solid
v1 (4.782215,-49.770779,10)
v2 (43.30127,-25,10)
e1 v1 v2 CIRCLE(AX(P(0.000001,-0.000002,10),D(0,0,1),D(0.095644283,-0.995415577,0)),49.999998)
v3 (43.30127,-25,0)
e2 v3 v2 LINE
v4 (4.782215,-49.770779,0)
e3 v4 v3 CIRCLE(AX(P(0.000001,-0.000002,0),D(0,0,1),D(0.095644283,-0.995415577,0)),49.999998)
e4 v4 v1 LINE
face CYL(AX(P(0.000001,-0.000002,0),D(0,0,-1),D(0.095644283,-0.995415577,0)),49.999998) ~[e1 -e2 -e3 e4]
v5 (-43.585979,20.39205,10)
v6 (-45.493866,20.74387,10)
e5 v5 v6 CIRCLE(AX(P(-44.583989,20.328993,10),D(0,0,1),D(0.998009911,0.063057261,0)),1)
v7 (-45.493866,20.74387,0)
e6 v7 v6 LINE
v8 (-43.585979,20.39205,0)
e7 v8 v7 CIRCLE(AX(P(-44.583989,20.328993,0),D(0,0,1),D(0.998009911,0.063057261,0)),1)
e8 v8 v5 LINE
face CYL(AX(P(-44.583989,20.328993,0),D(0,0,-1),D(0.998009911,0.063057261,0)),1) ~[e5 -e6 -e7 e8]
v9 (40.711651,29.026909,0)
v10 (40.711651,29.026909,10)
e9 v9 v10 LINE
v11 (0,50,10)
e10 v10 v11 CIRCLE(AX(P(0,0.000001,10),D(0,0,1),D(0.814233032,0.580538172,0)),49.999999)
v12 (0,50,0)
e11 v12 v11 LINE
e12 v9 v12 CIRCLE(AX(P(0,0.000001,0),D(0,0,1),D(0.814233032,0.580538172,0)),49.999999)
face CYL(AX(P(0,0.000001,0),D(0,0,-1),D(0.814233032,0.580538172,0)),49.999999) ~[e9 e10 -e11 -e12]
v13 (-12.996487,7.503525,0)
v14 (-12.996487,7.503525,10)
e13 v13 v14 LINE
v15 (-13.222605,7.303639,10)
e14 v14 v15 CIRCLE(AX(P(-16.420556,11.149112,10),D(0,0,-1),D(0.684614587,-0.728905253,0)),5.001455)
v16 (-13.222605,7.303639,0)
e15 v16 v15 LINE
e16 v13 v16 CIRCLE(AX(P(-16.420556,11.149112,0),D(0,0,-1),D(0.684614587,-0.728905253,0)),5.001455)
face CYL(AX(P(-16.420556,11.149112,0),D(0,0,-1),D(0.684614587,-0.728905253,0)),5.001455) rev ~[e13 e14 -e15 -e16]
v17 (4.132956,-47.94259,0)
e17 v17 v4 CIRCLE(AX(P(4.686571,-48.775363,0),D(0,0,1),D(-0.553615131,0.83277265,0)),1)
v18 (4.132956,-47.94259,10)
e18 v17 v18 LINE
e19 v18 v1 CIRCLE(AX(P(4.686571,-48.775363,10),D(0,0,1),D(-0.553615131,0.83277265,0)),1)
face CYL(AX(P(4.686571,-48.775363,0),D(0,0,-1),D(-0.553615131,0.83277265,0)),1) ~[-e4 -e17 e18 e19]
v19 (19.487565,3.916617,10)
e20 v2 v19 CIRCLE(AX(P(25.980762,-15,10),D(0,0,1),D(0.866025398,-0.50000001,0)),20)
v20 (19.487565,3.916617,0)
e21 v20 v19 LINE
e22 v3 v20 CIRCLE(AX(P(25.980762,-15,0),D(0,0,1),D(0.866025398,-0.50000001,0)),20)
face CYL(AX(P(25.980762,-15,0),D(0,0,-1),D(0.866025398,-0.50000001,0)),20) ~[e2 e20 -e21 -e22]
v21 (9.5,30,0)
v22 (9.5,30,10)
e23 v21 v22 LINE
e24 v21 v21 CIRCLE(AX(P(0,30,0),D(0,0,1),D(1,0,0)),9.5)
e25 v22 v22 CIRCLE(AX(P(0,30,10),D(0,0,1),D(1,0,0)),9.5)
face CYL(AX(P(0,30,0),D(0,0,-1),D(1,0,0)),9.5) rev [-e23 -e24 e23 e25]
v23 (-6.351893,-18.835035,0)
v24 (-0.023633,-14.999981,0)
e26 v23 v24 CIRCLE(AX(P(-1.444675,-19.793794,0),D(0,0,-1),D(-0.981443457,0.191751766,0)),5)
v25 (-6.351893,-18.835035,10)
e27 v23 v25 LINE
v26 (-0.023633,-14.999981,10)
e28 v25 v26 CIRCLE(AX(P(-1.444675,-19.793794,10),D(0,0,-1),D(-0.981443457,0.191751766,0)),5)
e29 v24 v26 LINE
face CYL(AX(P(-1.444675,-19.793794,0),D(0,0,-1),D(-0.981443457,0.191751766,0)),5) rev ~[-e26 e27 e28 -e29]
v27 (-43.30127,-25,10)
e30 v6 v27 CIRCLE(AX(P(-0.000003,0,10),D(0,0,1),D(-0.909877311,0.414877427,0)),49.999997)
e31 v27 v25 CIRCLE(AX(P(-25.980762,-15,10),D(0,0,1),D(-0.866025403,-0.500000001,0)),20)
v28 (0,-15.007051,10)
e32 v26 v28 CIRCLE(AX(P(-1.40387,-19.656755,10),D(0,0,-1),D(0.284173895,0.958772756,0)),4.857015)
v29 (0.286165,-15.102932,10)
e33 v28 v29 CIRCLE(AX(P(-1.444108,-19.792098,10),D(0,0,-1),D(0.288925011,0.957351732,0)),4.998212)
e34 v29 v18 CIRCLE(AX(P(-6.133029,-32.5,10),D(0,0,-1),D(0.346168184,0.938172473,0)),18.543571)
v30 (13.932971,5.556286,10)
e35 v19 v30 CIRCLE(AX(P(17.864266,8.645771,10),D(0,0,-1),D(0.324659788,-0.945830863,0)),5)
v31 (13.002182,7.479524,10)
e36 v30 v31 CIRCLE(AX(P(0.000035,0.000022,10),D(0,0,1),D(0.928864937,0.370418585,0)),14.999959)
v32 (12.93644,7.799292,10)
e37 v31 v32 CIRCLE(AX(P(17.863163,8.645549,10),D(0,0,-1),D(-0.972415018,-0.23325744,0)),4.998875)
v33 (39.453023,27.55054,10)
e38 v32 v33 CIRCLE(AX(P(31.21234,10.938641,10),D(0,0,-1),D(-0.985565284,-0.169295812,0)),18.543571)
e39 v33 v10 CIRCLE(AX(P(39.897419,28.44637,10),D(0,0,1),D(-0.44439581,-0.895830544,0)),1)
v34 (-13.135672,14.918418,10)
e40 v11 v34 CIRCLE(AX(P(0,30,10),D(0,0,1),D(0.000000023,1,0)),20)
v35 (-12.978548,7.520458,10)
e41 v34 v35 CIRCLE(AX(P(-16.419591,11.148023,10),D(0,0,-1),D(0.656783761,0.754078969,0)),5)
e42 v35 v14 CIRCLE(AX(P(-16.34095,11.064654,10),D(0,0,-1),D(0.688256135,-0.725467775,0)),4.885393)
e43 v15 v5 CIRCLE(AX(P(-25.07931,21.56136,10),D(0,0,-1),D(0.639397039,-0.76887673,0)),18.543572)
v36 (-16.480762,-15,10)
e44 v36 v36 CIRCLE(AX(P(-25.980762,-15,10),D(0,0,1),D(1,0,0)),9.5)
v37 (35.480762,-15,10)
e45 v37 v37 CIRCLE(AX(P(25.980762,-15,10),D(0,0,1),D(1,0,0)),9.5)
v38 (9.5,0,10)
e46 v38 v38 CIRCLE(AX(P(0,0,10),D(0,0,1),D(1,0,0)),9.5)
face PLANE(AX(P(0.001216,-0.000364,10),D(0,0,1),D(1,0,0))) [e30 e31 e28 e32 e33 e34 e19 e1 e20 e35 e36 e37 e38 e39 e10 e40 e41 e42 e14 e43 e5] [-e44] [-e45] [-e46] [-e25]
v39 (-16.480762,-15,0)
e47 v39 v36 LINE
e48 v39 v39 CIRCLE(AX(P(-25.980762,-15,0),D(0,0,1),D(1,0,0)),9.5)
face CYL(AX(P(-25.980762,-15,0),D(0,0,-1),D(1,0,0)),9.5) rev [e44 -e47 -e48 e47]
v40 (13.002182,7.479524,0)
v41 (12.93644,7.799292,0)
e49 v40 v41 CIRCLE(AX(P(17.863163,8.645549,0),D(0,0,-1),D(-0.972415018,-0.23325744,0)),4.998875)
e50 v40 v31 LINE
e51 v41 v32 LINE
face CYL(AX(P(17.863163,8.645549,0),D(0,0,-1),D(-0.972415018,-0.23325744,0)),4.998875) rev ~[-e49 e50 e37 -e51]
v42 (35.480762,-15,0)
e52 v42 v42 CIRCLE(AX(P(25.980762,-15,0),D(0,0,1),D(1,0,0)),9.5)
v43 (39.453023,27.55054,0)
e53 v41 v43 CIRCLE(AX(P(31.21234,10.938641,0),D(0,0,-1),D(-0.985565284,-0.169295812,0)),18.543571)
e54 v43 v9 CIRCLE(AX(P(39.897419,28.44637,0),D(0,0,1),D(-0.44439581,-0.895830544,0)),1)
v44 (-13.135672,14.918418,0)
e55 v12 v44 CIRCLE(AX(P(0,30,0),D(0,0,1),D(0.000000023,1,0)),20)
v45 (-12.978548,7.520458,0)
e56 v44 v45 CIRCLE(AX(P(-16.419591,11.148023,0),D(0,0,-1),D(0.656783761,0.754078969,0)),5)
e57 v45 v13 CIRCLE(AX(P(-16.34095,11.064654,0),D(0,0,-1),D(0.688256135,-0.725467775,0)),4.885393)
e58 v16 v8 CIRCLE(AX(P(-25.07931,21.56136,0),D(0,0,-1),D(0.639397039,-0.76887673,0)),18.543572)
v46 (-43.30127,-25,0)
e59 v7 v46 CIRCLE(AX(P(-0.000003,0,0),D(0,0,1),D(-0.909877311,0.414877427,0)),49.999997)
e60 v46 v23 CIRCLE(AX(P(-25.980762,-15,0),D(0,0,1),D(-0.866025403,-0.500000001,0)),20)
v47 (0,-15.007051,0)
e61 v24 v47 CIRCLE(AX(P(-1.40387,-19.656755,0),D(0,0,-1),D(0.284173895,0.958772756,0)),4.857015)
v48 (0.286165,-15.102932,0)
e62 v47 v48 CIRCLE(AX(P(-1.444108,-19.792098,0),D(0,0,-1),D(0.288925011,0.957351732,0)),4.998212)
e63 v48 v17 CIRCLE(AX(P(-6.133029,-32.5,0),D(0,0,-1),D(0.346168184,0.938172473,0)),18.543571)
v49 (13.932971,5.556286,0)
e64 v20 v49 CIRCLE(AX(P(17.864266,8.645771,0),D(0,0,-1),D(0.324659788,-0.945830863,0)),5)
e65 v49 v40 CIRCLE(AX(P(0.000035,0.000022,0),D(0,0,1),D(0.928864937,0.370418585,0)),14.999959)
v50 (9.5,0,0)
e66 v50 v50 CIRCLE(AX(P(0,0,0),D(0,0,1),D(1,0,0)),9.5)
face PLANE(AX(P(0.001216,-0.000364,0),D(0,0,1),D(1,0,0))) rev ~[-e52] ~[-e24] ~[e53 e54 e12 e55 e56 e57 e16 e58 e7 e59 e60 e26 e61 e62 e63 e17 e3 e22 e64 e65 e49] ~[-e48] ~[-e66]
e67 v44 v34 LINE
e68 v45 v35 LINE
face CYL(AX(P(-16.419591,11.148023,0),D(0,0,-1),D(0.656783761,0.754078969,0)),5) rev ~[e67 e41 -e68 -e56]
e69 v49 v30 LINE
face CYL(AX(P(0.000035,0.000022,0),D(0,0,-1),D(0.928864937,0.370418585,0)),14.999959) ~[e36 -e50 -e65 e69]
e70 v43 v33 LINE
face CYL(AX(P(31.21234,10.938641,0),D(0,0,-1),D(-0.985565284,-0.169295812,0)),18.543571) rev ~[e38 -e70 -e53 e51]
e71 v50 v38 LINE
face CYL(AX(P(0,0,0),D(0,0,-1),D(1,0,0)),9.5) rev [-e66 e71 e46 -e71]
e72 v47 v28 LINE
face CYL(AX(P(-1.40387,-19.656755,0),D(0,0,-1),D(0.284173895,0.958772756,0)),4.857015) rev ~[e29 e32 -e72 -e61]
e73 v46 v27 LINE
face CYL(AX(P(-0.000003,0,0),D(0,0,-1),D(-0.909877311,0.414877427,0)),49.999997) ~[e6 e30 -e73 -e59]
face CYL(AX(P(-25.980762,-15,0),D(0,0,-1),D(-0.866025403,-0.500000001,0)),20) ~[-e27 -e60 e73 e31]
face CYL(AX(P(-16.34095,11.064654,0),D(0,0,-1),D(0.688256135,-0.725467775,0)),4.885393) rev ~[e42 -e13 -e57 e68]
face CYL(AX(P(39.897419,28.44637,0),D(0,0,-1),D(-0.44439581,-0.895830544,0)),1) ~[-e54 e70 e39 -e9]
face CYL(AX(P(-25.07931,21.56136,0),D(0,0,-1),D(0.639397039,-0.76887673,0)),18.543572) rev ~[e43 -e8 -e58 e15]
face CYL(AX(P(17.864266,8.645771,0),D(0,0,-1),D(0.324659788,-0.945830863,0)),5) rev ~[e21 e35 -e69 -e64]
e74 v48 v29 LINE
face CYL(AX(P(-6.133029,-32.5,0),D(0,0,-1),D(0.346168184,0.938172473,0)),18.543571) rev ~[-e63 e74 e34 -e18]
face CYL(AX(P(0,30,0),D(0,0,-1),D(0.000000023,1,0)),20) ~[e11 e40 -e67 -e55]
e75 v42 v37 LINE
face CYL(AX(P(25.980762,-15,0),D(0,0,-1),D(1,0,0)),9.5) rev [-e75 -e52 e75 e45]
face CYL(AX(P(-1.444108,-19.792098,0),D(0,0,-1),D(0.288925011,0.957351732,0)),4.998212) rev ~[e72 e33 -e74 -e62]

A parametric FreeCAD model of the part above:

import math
import FreeCAD as App
import Part
import Sketcher

doc = App.newDocument("Part")
body = doc.addObject("PartDesign::Body", "Body")

sketch1 = body.newObject("Sketcher::SketchObject", "Sketch")
sketch1.AttachmentSupport = (doc.getObject("XY_Plane"), [""])
sketch1.MapMode = "FlatFace"
sketch1.addGeometry(Part.ArcOfCircle(Part.Circle(App.Vector(4.686571, -48.775363, 0), App.Vector(0, 0, 1), 1), math.radians(123.615381), math.radians(275.488365)), False)
sketch1.addGeometry(Part.ArcOfCircle(Part.Circle(App.Vector(0.000001, -0.000002, 0), App.Vector(0, 0, 1), 49.999998), math.radians(-84.511597), math.radians(-29.999998)), False)
sketch1.addGeometry(Part.ArcOfCircle(Part.Circle(App.Vector(25.980762, -15, 0), App.Vector(0, 0, 1), 20), math.radians(-30.000001), math.radians(108.944969)), False)
sketch1.addGeometry(Part.ArcOfCircle(Part.Circle(App.Vector(17.864266, 8.645771, 0), App.Vector(0, 0, 1), 5), math.radians(-141.837271), math.radians(-71.055035)), False)
sketch1.addGeometry(Part.ArcOfCircle(Part.Circle(App.Vector(0.000035, 0.000022, 0), App.Vector(0, 0, 1), 14.999959), math.radians(21.741435), math.radians(29.90972)), False)
sketch1.addGeometry(Part.ArcOfCircle(Part.Circle(App.Vector(17.863163, 8.645549, 0), App.Vector(0, 0, 1), 4.998875), math.radians(-170.253491), math.radians(-166.511073)), False)
sketch1.addGeometry(Part.ArcOfCircle(Part.Circle(App.Vector(31.21234, 10.938641, 0), App.Vector(0, 0, 1), 18.543571), math.radians(63.61532), math.radians(189.746879)), False)
sketch1.addGeometry(Part.ArcOfCircle(Part.Circle(App.Vector(39.897419, 28.44637, 0), App.Vector(0, 0, 1), 1), math.radians(-116.384689), math.radians(35.488452)), False)
sketch1.addGeometry(Part.ArcOfCircle(Part.Circle(App.Vector(0, 0.000001, 0), App.Vector(0, 0, 1), 49.999999), math.radians(35.488404), math.radians(90)), False)
sketch1.addGeometry(Part.ArcOfCircle(Part.Circle(App.Vector(0, 30, 0), App.Vector(0, 0, 1), 20), math.radians(89.999999), math.radians(228.94497)), False)
sketch1.addGeometry(Part.ArcOfCircle(Part.Circle(App.Vector(-16.419591, 11.148023, 0), App.Vector(0, 0, 1), 5), math.radians(-46.511532), math.radians(48.944957)), False)
sketch1.addGeometry(Part.ArcOfCircle(Part.Circle(App.Vector(-16.34095, 11.064654, 0), App.Vector(0, 0, 1), 4.885393), math.radians(-46.797087), math.radians(-46.507775)), False)
sketch1.addGeometry(Part.ArcOfCircle(Part.Circle(App.Vector(-16.420556, 11.149112, 0), App.Vector(0, 0, 1), 5.001455), math.radians(-50.252597), math.radians(-46.794696)), False)
sketch1.addGeometry(Part.ArcOfCircle(Part.Circle(App.Vector(-25.07931, 21.56136, 0), App.Vector(0, 0, 1), 18.543572), math.radians(-176.384676), math.radians(-50.253127)), False)
sketch1.addGeometry(Part.ArcOfCircle(Part.Circle(App.Vector(-44.583989, 20.328993, 0), App.Vector(0, 0, 1), 1), math.radians(3.615314), math.radians(155.48841)), False)
sketch1.addGeometry(Part.ArcOfCircle(Part.Circle(App.Vector(-0.000003, 0, 0), App.Vector(0, 0, 1), 49.999997), math.radians(155.488402), math.radians(210.000002)), False)
sketch1.addGeometry(Part.ArcOfCircle(Part.Circle(App.Vector(-25.980762, -15, 0), App.Vector(0, 0, 1), 20), math.radians(-150), math.radians(-11.055032)), False)
sketch1.addGeometry(Part.ArcOfCircle(Part.Circle(App.Vector(-1.444675, -19.793794, 0), App.Vector(0, 0, 1), 5), math.radians(73.48846), math.radians(168.944967)), False)
sketch1.addGeometry(Part.ArcOfCircle(Part.Circle(App.Vector(-1.40387, -19.656755, 0), App.Vector(0, 0, 1), 4.857015), math.radians(73.199531), math.radians(73.490525)), False)
sketch1.addGeometry(Part.ArcOfCircle(Part.Circle(App.Vector(-1.444108, -19.792098, 0), App.Vector(0, 0, 1), 4.998212), math.radians(69.746249), math.radians(73.206391)), False)
sketch1.addGeometry(Part.ArcOfCircle(Part.Circle(App.Vector(-6.133029, -32.5, 0), App.Vector(0, 0, 1), 18.543571), math.radians(-56.384679), math.radians(69.746878)), False)
sketch1.addGeometry(Part.Circle(App.Vector(-25.980762, -15, 0), App.Vector(0, 0, 1), 9.5), False)
sketch1.addGeometry(Part.Circle(App.Vector(25.980762, -15, 0), App.Vector(0, 0, 1), 9.5), False)
sketch1.addGeometry(Part.Circle(App.Vector(0, 0, 0), App.Vector(0, 0, 1), 9.5), False)
sketch1.addGeometry(Part.Circle(App.Vector(0, 30, 0), App.Vector(0, 0, 1), 9.5), False)
sketch1.addConstraint(Sketcher.Constraint("Tangent", 0, 2, 1, 1))
sketch1.addConstraint(Sketcher.Constraint("Tangent", 1, 2, 2, 1))
sketch1.addConstraint(Sketcher.Constraint("Tangent", 2, 2, 3, 2))
sketch1.addConstraint(Sketcher.Constraint("Coincident", 3, 1, 4, 1))
sketch1.addConstraint(Sketcher.Constraint("Coincident", 4, 2, 5, 2))
sketch1.addConstraint(Sketcher.Constraint("Coincident", 5, 1, 6, 2))
sketch1.addConstraint(Sketcher.Constraint("Tangent", 6, 1, 7, 1))
sketch1.addConstraint(Sketcher.Constraint("Tangent", 7, 2, 8, 1))
sketch1.addConstraint(Sketcher.Constraint("Tangent", 8, 2, 9, 1))
sketch1.addConstraint(Sketcher.Constraint("Tangent", 9, 2, 10, 2))
sketch1.addConstraint(Sketcher.Constraint("Coincident", 10, 1, 11, 2))
sketch1.addConstraint(Sketcher.Constraint("Coincident", 11, 1, 12, 2))
sketch1.addConstraint(Sketcher.Constraint("Coincident", 12, 1, 13, 2))
sketch1.addConstraint(Sketcher.Constraint("Tangent", 13, 1, 14, 1))
sketch1.addConstraint(Sketcher.Constraint("Tangent", 14, 2, 15, 1))
sketch1.addConstraint(Sketcher.Constraint("Tangent", 15, 2, 16, 1))
sketch1.addConstraint(Sketcher.Constraint("Tangent", 16, 2, 17, 2))
sketch1.addConstraint(Sketcher.Constraint("Coincident", 17, 1, 18, 2))
sketch1.addConstraint(Sketcher.Constraint("Coincident", 18, 1, 19, 2))
sketch1.addConstraint(Sketcher.Constraint("Coincident", 19, 1, 20, 2))
sketch1.addConstraint(Sketcher.Constraint("Tangent", 20, 1, 0, 1))
sketch1.addConstraint(Sketcher.Constraint("Coincident", 1, 3, -1, 1))
sketch1.addConstraint(Sketcher.Constraint("Coincident", 8, 3, -1, 1))
sketch1.addConstraint(Sketcher.Constraint("Coincident", 15, 3, -1, 1))
sketch1.addConstraint(Sketcher.Constraint("Coincident", 23, 3, -1, 1))
sketch1.addConstraint(Sketcher.Constraint("Coincident", 21, 3, 16, 3))
sketch1.addConstraint(Sketcher.Constraint("Coincident", 22, 3, 2, 3))
sketch1.addConstraint(Sketcher.Constraint("Coincident", 24, 3, 9, 3))
sketch1.addConstraint(Sketcher.Constraint("Equal", 0, 7))
sketch1.addConstraint(Sketcher.Constraint("Equal", 1, 8))
sketch1.addConstraint(Sketcher.Constraint("Equal", 2, 9))
sketch1.addConstraint(Sketcher.Constraint("Equal", 3, 10))
sketch1.addConstraint(Sketcher.Constraint("Equal", 6, 13))
sketch1.addConstraint(Sketcher.Constraint("Equal", 7, 14))
sketch1.addConstraint(Sketcher.Constraint("Equal", 1, 15))
sketch1.addConstraint(Sketcher.Constraint("Equal", 9, 16))
sketch1.addConstraint(Sketcher.Constraint("Equal", 10, 17))
sketch1.addConstraint(Sketcher.Constraint("Equal", 13, 20))
sketch1.addConstraint(Sketcher.Constraint("Equal", 21, 22))
sketch1.addConstraint(Sketcher.Constraint("Equal", 22, 23))
sketch1.addConstraint(Sketcher.Constraint("Equal", 23, 24))
sketch1.addConstraint(Sketcher.Constraint("PointOnObject", 9, 3, -2))
sketch1.addConstraint(Sketcher.Constraint("PointOnObject", 18, 1, -2))
sketch1.addConstraint(Sketcher.Constraint("Horizontal", 2, 3, 16, 3))
sketch1.addConstraint(Sketcher.Constraint("Diameter", 21, 19.0))
sketch1.addConstraint(Sketcher.Constraint("Radius", 0, 1.0))
sketch1.addConstraint(Sketcher.Constraint("Radius", 2, 20.0))
sketch1.addConstraint(Sketcher.Constraint("Radius", 3, 5.0))
sketch1.addConstraint(Sketcher.Constraint("Radius", 8, 49.999999))
sketch1.addConstraint(Sketcher.Constraint("DistanceY", 2, 3, -1, 1, 15.0))
sketch1.addConstraint(Sketcher.Constraint("DistanceY", 20, 3, -1, 1, 32.5))
sketch1.addConstraint(Sketcher.Constraint("Radius", 4, 14.999959))
sketch1.addConstraint(Sketcher.Constraint("Radius", 6, 18.543571))
sketch1.addConstraint(Sketcher.Constraint("Radius", 5, 4.998875))
sketch1.addConstraint(Sketcher.Constraint("Radius", 11, 4.885393))
sketch1.addConstraint(Sketcher.Constraint("Radius", 12, 5.001455))
sketch1.addConstraint(Sketcher.Constraint("Radius", 18, 4.857015))
sketch1.addConstraint(Sketcher.Constraint("Radius", 19, 4.998212))
sketch1.addConstraint(Sketcher.Constraint("DistanceY", 4, 3, 10, 3, 11.148))
sketch1.addConstraint(Sketcher.Constraint("DistanceX", 5, 3, 2, 3, 8.117599))
sketch1.addConstraint(Sketcher.Constraint("DistanceY", 3, 3, 7, 3, 19.800599))
sketch1.addConstraint(Sketcher.Constraint("DistanceY", 19, 3, 8, 3, 19.792099))
sketch1.addConstraint(Sketcher.Constraint("DistanceX", 20, 3, 0, 3, 10.819601))
sketch1.addConstraint(Sketcher.Constraint("DistanceX", 3, 3, 2, 2, 1.623299))
sketch1.addConstraint(Sketcher.Constraint("DistanceY", 4, 3, 4, 2, 7.479502))
sketch1.addConstraint(Sketcher.Constraint("DistanceY", 6, 3, 6, 1, 16.611899))
sketch1.addConstraint(Sketcher.Constraint("DistanceX", 17, 1, 19, 1, 0.309798))
sketch1.addConstraint(Sketcher.Constraint("DistanceX", 10, 3, -1, 1, 16.419591))
sketch1.addConstraint(Sketcher.Constraint("DistanceX", 11, 3, -1, 1, 16.34095))
sketch1.addConstraint(Sketcher.Constraint("DistanceX", 13, 3, -1, 1, 25.07931))
sketch1.addConstraint(Sketcher.Constraint("DistanceY", -1, 1, 13, 3, 21.56136))
sketch1.addConstraint(Sketcher.Constraint("DistanceX", 18, 3, -1, 1, 1.40387))
sketch1.addConstraint(Sketcher.Constraint("DistanceX", -1, 1, 5, 1, 12.93644))
sketch1.addConstraint(Sketcher.Constraint("DistanceX", 10, 1, -1, 1, 12.978548))
sketch1.addConstraint(Sketcher.Constraint("DistanceY", -1, 1, 12, 1, 7.303639))
sketch1.addConstraint(Sketcher.Constraint("DistanceY", 17, 1, -1, 1, 14.999981))
sketch1.addConstraint(Sketcher.Constraint("DistanceX", 11, 1, 10, 1, 0.017939))
pad1 = body.newObject("PartDesign::Pad", "Pad")
pad1.Profile = sketch1
pad1.Length = 10

doc.recompute()
